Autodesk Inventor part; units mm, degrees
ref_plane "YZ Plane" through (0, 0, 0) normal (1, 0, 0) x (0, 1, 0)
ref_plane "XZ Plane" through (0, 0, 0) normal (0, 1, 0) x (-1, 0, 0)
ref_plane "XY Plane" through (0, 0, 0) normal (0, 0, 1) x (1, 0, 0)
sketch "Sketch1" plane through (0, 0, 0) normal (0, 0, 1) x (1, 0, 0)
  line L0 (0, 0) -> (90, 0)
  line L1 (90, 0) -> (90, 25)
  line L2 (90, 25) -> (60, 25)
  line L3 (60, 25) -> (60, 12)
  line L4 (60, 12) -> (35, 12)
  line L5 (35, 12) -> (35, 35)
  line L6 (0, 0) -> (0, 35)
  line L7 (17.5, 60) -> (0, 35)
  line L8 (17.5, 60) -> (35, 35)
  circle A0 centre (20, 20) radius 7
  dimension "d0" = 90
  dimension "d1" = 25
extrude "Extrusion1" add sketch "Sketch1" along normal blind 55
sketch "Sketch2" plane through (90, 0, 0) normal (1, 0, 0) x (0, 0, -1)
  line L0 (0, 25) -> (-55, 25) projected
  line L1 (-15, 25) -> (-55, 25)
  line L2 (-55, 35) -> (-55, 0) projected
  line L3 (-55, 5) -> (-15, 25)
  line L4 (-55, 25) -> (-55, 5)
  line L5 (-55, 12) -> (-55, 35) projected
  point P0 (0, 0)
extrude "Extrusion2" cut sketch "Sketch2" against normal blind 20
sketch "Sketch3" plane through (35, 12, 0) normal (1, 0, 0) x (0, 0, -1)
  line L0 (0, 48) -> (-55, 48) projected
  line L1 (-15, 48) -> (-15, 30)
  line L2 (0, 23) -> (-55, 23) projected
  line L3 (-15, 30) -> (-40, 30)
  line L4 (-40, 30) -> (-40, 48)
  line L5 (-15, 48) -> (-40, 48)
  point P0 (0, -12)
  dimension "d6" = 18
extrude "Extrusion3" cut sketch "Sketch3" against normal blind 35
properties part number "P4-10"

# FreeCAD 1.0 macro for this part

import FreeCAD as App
import Part
import Sketcher

V = App.Vector
Q = App.Units.Quantity


def add_polygon(sketch, points):
    """Adds a closed chain of lines whose ends are joined by coincident constraints."""
    first, n = sketch.GeometryCount, len(points)
    for a, b in zip(points, points[1:] + points[:1]):
        sketch.addGeometry(Part.LineSegment(App.Vector(*a, 0), App.Vector(*b, 0)), False)
    for i in range(n):
        sketch.addConstraint(Sketcher.Constraint("Coincident", first + i, 2, first + (i + 1) % n, 1))

doc = App.newDocument("Part")
body = doc.addObject("PartDesign::Body", "Body")

# Sketch on XY plane
sketch1 = body.newObject("Sketcher::SketchObject", "Sketch")
sketch1.AttachmentSupport = (doc.getObject("XY_Plane"), [""])
sketch1.MapMode = "FlatFace"
add_polygon(sketch1, [(0, 35), (0, 0), (90, 0), (90, 25), (60, 25), (60, 12), (35, 12), (35, 35), (17.5, 60)])  # lines 0-8
sketch1.addGeometry(Part.Circle(V(20, 20, 0), V(0, 0, 1), 7), False)  # 9
sketch1.addConstraint([
    Sketcher.Constraint("Vertical", 0),
    Sketcher.Constraint("Horizontal", 1),
    Sketcher.Constraint("Vertical", 2),
    Sketcher.Constraint("Horizontal", 3),
    Sketcher.Constraint("Vertical", 4),
    Sketcher.Constraint("Horizontal", 5),
    Sketcher.Constraint("Vertical", 6),
    Sketcher.Constraint("Coincident", 0, 2, -1, 1),
    Sketcher.Constraint("Horizontal", 6, 2, 8, 2),
    Sketcher.Constraint("Equal", 5, 2),
    Sketcher.Constraint("Equal", 7, 8),
    Sketcher.Constraint("DistanceX", 1, 1, 1, 2, Q("90 mm")),
    Sketcher.Constraint("DistanceX", 5, 2, 5, 1, Q("25 mm")),
    Sketcher.Constraint("Diameter", 9, Q("14 mm")),
    Sketcher.Constraint("DistanceY", 6, 2, 7, 2, Q("25 mm")),
    Sketcher.Constraint("DistanceX", 3, 2, 3, 1, Q("30 mm")),
    Sketcher.Constraint("DistanceY", 0, 2, 0, 1, Q("35 mm")),
    Sketcher.Constraint("DistanceY", 4, 2, 4, 1, Q("13 mm")),
    Sketcher.Constraint("DistanceX", -1, 1, 9, 3, Q("20 mm")),
    Sketcher.Constraint("DistanceY", -1, 1, 9, 3, Q("20 mm")),
])
pad1 = body.newObject("PartDesign::Pad", "Pad")
pad1.Profile = sketch1
pad1.Length = 55

# Sketch on YZ plane
sketch2 = body.newObject("Sketcher::SketchObject", "Sketch001")
sketch2.AttachmentSupport = (doc.getObject("YZ_Plane"), [""])
sketch2.MapMode = "FlatFace"
sketch2.AttachmentOffset = App.Placement(V(0, 0, 90), App.Rotation())
add_polygon(sketch2, [(5, 55), (25, 15), (25, 55)])  # lines 0-2
sketch2.addConstraint([
    Sketcher.Constraint("Vertical", 1),
    Sketcher.Constraint("Horizontal", 2),
    Sketcher.Constraint("DistanceX", 2, 2, 2, 1, Q("20 mm")),
    Sketcher.Constraint("DistanceY", 1, 1, 1, 2, Q("40 mm")),
    Sketcher.Constraint("DistanceX", -1, 1, 0, 2, Q("25 mm")),
    Sketcher.Constraint("DistanceY", -1, 1, 0, 2, Q("15 mm")),
])
pocket1 = body.newObject("PartDesign::Pocket", "Pocket")
pocket1.Profile = sketch2
pocket1.Length = 20

# Sketch on YZ plane
sketch3 = body.newObject("Sketcher::SketchObject", "Sketch002")
sketch3.AttachmentSupport = (doc.getObject("YZ_Plane"), [""])
sketch3.MapMode = "FlatFace"
sketch3.AttachmentOffset = App.Placement(V(0, 0, 35), App.Rotation())
add_polygon(sketch3, [(42, 15), (60, 15), (60, 40), (42, 40)])  # lines 0-3
sketch3.addConstraint([
    Sketcher.Constraint("Horizontal", 0),
    Sketcher.Constraint("Vertical", 1),
    Sketcher.Constraint("Horizontal", 2),
    Sketcher.Constraint("Vertical", 3),
    Sketcher.Constraint("DistanceX", 0, 1, 0, 2, Q("18 mm")),
    Sketcher.Constraint("DistanceY", 1, 1, 1, 2, Q("25 mm")),
    Sketcher.Constraint("DistanceX", -1, 1, 0, 2, Q("60 mm")),
    Sketcher.Constraint("DistanceY", -1, 1, 0, 2, Q("15 mm")),
])
pocket2 = body.newObject("PartDesign::Pocket", "Pocket001")
pocket2.Profile = sketch3
pocket2.Length = 35

doc.recompute()
